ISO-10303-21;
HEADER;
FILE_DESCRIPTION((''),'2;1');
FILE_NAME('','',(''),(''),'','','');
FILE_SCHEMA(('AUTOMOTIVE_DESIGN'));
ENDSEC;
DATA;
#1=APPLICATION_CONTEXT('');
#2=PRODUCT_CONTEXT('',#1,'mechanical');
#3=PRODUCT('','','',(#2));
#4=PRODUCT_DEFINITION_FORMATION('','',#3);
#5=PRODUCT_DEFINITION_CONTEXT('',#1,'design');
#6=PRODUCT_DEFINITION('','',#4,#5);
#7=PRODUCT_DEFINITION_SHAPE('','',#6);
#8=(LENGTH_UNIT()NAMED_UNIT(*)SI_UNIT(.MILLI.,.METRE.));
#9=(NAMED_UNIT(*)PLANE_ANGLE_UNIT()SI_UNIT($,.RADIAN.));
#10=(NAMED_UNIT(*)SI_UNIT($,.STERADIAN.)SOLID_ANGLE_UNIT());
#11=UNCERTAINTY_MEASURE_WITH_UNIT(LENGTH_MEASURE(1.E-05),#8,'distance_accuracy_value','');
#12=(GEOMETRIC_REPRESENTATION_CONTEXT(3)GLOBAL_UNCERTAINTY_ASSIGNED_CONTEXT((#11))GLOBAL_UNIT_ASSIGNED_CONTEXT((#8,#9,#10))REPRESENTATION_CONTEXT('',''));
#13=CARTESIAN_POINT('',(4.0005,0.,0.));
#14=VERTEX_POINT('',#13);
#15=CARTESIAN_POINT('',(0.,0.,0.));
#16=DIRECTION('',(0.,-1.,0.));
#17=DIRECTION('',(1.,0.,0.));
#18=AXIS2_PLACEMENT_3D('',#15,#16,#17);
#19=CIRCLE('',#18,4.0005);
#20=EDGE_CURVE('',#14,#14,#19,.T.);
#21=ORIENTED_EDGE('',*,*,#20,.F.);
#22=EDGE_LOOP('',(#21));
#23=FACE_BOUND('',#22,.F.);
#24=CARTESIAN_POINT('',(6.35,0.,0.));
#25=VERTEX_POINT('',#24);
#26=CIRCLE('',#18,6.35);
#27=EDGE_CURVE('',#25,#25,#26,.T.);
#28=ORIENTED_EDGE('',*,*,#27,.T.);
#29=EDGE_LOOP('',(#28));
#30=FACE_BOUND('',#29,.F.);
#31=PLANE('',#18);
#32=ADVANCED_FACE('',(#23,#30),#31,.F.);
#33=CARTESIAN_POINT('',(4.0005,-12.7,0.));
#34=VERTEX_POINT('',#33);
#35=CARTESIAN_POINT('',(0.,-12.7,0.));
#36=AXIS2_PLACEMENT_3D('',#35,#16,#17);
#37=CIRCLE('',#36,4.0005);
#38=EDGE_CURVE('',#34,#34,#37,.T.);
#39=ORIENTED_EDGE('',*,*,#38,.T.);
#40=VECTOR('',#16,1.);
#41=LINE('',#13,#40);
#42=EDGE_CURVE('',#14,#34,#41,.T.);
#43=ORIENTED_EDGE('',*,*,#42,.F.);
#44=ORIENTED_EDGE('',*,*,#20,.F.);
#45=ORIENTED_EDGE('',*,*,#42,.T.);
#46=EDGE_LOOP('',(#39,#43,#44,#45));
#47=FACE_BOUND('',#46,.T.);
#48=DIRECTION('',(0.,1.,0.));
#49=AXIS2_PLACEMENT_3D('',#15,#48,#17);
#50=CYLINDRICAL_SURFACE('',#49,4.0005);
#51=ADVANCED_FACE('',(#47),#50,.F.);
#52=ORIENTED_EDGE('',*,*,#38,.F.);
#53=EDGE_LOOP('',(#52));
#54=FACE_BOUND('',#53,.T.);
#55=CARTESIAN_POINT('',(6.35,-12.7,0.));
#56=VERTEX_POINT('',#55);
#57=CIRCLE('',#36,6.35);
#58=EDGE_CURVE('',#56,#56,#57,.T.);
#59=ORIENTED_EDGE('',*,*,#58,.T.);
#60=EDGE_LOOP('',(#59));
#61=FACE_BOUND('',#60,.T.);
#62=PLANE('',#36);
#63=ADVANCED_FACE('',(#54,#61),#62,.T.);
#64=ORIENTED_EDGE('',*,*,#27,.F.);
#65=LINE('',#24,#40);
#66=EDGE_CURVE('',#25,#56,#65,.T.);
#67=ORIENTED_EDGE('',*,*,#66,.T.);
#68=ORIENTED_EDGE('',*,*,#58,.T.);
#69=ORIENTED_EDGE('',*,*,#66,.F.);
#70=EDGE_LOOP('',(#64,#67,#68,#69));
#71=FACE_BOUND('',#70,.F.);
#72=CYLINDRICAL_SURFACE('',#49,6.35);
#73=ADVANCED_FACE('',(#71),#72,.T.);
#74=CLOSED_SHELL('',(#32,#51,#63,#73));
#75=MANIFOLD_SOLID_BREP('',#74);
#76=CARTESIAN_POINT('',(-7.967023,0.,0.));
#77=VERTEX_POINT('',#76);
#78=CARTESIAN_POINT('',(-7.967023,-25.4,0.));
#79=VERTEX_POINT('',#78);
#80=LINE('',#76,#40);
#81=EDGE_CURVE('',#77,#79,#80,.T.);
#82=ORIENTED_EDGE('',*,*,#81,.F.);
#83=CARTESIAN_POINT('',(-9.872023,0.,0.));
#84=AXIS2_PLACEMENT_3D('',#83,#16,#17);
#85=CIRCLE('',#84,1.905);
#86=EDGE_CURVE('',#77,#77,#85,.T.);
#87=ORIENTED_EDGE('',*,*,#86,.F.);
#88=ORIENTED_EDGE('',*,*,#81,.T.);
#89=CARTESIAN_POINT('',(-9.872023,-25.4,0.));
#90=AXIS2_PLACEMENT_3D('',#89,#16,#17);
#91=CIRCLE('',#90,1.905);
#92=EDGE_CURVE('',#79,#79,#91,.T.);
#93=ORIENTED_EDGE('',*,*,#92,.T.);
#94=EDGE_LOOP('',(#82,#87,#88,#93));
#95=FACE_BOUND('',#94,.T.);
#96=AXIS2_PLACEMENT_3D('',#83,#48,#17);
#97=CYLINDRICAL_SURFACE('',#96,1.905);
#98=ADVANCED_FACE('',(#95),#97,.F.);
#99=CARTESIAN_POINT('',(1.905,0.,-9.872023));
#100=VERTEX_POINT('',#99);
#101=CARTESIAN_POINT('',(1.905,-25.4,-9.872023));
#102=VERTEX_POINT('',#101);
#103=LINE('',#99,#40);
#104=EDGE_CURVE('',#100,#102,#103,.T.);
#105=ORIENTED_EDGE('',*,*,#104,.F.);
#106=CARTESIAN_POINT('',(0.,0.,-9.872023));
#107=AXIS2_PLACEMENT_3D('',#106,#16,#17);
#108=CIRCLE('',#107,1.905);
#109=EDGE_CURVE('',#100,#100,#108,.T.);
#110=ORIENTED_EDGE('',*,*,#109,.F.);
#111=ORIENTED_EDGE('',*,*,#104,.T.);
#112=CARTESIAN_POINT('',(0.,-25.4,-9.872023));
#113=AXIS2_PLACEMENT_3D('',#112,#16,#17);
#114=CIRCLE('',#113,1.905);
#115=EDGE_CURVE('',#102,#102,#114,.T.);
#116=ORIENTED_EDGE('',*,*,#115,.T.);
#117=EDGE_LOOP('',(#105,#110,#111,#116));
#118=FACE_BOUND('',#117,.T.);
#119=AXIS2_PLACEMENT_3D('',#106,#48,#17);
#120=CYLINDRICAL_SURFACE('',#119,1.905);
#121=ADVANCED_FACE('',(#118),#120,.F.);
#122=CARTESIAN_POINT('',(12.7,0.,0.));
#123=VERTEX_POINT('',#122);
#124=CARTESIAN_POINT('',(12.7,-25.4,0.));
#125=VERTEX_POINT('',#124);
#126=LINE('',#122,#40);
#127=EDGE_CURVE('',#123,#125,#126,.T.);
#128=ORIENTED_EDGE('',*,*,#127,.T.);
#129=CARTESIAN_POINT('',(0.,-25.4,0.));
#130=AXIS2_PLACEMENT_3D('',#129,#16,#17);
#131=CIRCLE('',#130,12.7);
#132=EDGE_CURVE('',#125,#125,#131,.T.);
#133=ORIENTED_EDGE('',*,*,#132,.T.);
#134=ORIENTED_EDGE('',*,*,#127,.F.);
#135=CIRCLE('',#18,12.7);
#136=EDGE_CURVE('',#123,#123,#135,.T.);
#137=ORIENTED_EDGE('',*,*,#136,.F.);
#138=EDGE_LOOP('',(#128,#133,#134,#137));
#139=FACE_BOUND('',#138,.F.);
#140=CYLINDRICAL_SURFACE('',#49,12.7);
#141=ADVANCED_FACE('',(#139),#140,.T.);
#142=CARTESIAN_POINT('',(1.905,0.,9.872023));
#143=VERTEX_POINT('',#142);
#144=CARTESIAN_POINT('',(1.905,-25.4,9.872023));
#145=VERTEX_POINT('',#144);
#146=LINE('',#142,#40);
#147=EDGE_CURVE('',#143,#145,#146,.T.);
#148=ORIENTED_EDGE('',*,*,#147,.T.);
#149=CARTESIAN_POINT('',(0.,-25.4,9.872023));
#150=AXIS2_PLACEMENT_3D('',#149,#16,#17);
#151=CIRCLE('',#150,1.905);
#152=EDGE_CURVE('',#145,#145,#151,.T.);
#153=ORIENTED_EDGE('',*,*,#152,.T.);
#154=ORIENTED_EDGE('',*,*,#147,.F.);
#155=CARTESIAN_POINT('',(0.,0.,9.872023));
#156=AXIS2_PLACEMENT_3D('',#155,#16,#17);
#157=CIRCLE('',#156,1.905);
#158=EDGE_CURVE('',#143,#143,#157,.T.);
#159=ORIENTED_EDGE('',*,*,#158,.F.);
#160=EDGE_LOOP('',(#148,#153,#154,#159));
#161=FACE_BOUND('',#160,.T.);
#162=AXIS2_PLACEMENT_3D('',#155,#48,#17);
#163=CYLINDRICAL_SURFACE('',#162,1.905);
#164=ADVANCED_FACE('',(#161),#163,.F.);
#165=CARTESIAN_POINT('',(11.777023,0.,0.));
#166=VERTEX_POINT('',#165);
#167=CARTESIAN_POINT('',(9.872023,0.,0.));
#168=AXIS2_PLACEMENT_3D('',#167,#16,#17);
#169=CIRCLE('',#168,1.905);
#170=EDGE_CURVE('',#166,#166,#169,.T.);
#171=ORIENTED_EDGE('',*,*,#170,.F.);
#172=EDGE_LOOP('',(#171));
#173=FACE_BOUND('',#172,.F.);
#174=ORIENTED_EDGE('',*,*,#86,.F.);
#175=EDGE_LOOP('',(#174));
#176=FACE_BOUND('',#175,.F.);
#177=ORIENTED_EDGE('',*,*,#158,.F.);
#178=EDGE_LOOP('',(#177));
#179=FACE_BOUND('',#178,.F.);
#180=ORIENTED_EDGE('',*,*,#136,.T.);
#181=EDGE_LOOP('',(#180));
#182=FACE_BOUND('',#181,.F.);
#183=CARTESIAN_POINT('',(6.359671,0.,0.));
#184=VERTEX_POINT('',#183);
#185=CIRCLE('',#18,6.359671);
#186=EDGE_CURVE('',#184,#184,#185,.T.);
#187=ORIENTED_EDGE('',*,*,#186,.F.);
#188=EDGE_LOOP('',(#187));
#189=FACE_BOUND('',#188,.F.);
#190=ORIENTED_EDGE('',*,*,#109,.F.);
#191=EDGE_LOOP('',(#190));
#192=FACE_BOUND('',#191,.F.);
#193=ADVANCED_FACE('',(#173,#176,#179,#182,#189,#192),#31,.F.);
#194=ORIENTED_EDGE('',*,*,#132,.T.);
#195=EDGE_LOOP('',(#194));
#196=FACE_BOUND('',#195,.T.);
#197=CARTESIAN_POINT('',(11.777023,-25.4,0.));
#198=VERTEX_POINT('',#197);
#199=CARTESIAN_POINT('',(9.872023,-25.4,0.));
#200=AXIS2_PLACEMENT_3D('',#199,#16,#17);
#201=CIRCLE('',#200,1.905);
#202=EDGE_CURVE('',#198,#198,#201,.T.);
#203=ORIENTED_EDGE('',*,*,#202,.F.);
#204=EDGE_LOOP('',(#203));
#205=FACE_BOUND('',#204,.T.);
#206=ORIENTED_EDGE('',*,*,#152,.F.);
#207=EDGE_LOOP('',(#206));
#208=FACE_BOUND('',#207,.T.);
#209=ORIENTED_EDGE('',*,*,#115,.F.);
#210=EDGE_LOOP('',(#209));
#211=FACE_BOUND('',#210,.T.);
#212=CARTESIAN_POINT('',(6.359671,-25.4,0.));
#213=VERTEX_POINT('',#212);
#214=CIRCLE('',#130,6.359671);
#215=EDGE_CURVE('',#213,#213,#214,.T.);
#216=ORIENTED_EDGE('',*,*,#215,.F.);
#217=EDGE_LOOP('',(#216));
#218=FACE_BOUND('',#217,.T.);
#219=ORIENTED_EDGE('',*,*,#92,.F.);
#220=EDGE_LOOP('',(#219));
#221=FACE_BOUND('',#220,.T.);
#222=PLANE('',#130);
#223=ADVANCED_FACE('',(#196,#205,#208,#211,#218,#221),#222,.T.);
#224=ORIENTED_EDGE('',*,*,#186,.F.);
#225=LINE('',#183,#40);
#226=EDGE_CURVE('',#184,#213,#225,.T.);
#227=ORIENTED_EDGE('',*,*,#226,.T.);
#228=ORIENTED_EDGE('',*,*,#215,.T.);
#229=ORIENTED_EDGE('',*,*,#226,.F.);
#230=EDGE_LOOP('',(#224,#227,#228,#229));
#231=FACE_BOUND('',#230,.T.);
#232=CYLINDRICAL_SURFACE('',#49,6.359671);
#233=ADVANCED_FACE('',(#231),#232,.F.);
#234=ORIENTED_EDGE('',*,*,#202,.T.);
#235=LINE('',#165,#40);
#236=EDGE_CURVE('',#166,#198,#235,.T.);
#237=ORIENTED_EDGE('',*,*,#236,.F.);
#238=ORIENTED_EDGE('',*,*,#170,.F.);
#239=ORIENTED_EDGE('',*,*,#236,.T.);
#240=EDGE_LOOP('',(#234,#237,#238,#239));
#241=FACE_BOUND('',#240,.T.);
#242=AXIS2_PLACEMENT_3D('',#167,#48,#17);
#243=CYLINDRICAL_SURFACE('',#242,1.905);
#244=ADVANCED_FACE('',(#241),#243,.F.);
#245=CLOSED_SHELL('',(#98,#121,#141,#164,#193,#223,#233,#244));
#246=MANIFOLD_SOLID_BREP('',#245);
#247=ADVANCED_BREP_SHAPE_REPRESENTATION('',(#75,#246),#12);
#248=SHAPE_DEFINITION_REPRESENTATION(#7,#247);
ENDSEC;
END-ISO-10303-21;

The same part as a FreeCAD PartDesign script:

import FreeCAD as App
import Part
import Sketcher
Q = App.Units.Quantity

doc = App.newDocument("Part")
params = doc.addObject("Spreadsheet::Sheet", "Params")
for row, (alias, value) in enumerate([
    ("sketch1_diameter", "1 in"),
    ("sketch1_diameter2", "0.15 in"),
    ("pad1_length", "1 in"),
    ("sketch2_diameter", "0.5 in"),
    ("sketch2_diameter2", "0.315 in"),
    ("pad2_length", "0.5 in"),
], start=1):
    params.set(f"A{row}", alias)
    params.set(f"B{row}", "=" + value)
    params.setAlias(f"B{row}", alias)

body = doc.addObject("PartDesign::Body", "Body")

# Sketch on XZ plane
sketch1 = body.newObject("Sketcher::SketchObject", "Sketch")
sketch1.AttachmentSupport = (doc.getObject("XZ_Plane"), [""])
sketch1.MapMode = "FlatFace"
sketch1.addGeometry([
    Part.Circle(App.Vector(0, 0, 0), App.Vector(0, 0, 1), 12.7),  # 0
    Part.Circle(App.Vector(0, -9.9, 0), App.Vector(0, 0, 1), 1.9),  # 1
    Part.Circle(App.Vector(-9.9, 0, 0), App.Vector(0, 0, 1), 1.9),  # 2
    Part.Circle(App.Vector(0, 0, 0), App.Vector(0, 0, 1), 6.4),  # 3
    Part.Circle(App.Vector(9.9, 0, 0), App.Vector(0, 0, 1), 1.9),  # 4
    Part.Circle(App.Vector(0, 9.9, 0), App.Vector(0, 0, 1), 1.9),  # 5
], False)
sketch1.addConstraint([
    Sketcher.Constraint("Coincident", 0, 3, -1, 1),
    Sketcher.Constraint("Coincident", 3, 3, -1, 1),
    Sketcher.Constraint("Equal", 1, 2),
    Sketcher.Constraint("Equal", 2, 4),
    Sketcher.Constraint("Equal", 4, 5),
    Sketcher.Constraint("Symmetric", 2, 3, 4, 3, -1, 1),
    Sketcher.Constraint("Symmetric", 1, 3, 5, 3, -1, 1),
    Sketcher.Constraint("PointOnObject", 1, 3, -2),
    Sketcher.Constraint("PointOnObject", 2, 3, -1),
    Sketcher.Constraint("Diameter", 0, Q("1 in")),
    Sketcher.Constraint("Diameter", 1, Q("0.15 in")),
    Sketcher.Constraint("Diameter", 3, 12.719342),
    Sketcher.Constraint("DistanceY", 1, 3, -1, 1, 9.872023),
    Sketcher.Constraint("DistanceX", 2, 3, -1, 1, 9.872023),
])
sketch1.setExpression("Constraints[9]", "Params.sketch1_diameter")
sketch1.setExpression("Constraints[10]", "Params.sketch1_diameter2")
pad1 = body.newObject("PartDesign::Pad", "Pad")
pad1.Profile = sketch1
pad1.setExpression("Length", "Params.pad1_length")
body2 = doc.addObject("PartDesign::Body", "Body001")

# Sketch on XZ plane
sketch2 = body2.newObject("Sketcher::SketchObject", "Sketch001")
sketch2.AttachmentSupport = (doc.getObject("XZ_Plane001"), [""])
sketch2.MapMode = "FlatFace"
sketch2.addGeometry([
    Part.Circle(App.Vector(0, 0, 0), App.Vector(0, 0, 1), 6.3),
    Part.Circle(App.Vector(0, 0, 0), App.Vector(0, 0, 1), 4),
], False)
sketch2.addConstraint([
    Sketcher.Constraint("Coincident", 0, 3, -1, 1),
    Sketcher.Constraint("Coincident", 1, 3, -1, 1),
    Sketcher.Constraint("Diameter", 0, Q("0.5 in")),
    Sketcher.Constraint("Diameter", 1, Q("0.315 in")),
])
sketch2.setExpression("Constraints[2]", "Params.sketch2_diameter")
sketch2.setExpression("Constraints[3]", "Params.sketch2_diameter2")
pad2 = body2.newObject("PartDesign::Pad", "Pad001")
pad2.Profile = sketch2
pad2.setExpression("Length", "Params.pad2_length")

doc.recompute()
